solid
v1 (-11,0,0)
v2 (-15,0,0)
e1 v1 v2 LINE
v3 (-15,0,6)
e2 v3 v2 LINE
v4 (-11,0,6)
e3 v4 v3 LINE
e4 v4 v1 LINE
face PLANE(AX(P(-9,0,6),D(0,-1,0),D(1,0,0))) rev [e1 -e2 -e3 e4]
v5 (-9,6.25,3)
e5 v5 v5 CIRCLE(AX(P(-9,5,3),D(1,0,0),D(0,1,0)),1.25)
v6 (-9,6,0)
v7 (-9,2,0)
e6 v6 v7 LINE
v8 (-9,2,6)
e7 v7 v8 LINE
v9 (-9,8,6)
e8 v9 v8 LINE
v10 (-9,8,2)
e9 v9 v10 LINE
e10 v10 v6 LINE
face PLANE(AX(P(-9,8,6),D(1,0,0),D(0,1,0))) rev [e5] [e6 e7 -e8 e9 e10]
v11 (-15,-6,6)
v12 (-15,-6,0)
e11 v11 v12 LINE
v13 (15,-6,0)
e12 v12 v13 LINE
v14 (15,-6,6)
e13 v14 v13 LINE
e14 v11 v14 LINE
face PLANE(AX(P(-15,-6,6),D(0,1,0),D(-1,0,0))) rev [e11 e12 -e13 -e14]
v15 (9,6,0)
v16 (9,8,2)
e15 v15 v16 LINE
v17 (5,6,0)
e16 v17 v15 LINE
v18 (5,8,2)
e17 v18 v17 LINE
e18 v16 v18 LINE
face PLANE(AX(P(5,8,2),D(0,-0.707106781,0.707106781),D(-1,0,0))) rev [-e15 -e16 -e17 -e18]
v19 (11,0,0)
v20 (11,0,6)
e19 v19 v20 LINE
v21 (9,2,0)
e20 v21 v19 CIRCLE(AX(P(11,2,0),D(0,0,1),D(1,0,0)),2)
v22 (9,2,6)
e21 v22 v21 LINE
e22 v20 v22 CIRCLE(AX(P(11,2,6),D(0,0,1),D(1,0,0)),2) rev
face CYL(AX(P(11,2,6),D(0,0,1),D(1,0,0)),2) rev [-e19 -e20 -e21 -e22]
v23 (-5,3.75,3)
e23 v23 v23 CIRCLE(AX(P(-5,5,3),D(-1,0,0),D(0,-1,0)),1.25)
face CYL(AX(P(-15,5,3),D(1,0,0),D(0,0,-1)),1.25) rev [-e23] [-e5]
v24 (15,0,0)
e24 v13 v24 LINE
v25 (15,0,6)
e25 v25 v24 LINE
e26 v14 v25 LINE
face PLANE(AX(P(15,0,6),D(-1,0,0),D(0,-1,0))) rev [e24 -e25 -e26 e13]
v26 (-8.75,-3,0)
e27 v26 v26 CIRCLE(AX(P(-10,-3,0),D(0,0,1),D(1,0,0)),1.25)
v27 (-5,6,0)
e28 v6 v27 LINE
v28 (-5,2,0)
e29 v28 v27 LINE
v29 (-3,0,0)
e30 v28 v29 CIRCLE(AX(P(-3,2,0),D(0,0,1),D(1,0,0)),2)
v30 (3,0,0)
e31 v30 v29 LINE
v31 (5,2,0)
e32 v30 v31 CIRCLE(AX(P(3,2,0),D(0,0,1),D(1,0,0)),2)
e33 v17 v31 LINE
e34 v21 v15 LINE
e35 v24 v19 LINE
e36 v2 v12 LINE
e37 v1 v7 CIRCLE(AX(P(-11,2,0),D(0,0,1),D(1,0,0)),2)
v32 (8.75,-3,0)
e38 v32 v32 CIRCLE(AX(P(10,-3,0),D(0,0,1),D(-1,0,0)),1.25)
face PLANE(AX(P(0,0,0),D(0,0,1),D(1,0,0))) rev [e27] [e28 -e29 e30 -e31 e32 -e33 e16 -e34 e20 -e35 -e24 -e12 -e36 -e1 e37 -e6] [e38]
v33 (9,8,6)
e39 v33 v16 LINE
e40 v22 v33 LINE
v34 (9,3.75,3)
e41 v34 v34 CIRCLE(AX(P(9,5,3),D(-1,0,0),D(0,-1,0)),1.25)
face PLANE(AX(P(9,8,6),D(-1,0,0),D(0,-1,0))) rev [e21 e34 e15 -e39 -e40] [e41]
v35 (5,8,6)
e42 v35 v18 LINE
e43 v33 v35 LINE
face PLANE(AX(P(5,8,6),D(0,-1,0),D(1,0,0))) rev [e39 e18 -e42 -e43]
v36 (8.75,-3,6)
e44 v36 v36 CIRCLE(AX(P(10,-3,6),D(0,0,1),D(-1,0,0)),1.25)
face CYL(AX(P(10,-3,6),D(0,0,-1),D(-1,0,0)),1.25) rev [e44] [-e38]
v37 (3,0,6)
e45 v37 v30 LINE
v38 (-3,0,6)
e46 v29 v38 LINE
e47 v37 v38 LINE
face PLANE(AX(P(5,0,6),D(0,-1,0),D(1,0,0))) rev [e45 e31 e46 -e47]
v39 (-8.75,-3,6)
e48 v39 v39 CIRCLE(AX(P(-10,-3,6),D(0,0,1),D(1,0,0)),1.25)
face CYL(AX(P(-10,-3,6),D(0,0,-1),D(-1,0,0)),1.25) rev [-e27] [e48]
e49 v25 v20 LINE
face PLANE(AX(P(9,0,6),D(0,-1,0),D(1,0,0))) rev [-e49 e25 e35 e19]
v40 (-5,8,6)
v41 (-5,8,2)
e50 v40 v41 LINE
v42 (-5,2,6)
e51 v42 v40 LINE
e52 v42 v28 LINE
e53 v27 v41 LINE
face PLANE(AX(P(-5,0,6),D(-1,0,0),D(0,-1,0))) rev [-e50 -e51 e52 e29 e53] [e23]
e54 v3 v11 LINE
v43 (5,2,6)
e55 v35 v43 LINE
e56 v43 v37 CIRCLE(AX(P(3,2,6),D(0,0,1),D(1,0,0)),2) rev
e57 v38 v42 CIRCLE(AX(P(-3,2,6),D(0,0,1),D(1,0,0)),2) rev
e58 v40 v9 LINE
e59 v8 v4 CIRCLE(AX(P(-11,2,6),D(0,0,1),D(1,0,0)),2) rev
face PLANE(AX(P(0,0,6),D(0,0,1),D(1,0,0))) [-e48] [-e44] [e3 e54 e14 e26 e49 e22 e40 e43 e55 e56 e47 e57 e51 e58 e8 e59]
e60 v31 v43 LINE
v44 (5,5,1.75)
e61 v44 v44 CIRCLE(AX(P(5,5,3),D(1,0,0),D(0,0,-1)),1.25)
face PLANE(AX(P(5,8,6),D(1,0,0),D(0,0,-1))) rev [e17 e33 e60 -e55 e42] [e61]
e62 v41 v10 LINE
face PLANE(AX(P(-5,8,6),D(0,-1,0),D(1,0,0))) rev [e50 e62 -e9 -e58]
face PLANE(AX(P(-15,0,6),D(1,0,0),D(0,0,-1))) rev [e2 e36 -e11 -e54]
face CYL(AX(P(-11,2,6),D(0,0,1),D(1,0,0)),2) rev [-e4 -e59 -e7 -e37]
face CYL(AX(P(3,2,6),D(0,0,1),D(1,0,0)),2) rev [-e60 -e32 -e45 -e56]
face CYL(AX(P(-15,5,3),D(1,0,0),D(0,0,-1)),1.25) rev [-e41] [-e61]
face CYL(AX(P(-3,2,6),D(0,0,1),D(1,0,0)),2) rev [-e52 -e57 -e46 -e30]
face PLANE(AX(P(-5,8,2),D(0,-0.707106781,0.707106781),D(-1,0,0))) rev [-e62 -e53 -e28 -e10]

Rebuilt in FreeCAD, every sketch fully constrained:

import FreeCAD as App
import Part
import Sketcher
from FreeCAD import Vector


def edges_at(feature, points):
    """Names of the edges that pass closest to the given points."""
    edges = feature.Shape.Edges
    near = lambda p: min(range(len(edges)), key=lambda i: edges[i].distToShape(Part.Vertex(*p))[0])
    return sorted({f"Edge{near(p) + 1}" for p in points})

doc = App.newDocument("Part")
params = doc.addObject("Spreadsheet::Sheet", "Params")
for row, (alias, value) in enumerate([
    ("sketch1_diameter", "2.5 mm"),
    ("sketch1_width", "30 mm"),
    ("sketch1_width2", "6 mm"),
    ("sketch1_width3", "4 mm"),
    ("sketch1_height", "8 mm"),
    ("pad1_length", "6 mm"),
    ("chamfer_size", "2 mm"),
    ("sketch2_diameter", "2.5 mm"),
    ("fillet_radius", "2 mm"),
], start=1):
    params.set(f"A{row}", alias)
    params.set(f"B{row}", "=" + value)
    params.setAlias(f"B{row}", alias)

body = doc.addObject("PartDesign::Body", "Body")

# Sketch on XY plane
sketch1 = body.newObject("Sketcher::SketchObject", "Sketch")
sketch1.AttachmentSupport = (doc.getObject("XY_Plane"), [""])
sketch1.MapMode = "FlatFace"
sketch1.addGeometry(Part.LineSegment(Vector(-15, -6, 0), Vector(15, -6, 0)), False)
sketch1.addGeometry(Part.LineSegment(Vector(15, -6, 0), Vector(15, 0, 0)), False)
sketch1.addGeometry(Part.LineSegment(Vector(15, 0, 0), Vector(9, 0, 0)), False)
sketch1.addGeometry(Part.LineSegment(Vector(9, 0, 0), Vector(9, 8, 0)), False)
sketch1.addGeometry(Part.LineSegment(Vector(9, 8, 0), Vector(5, 8, 0)), False)
sketch1.addGeometry(Part.LineSegment(Vector(5, 8, 0), Vector(5, 0, 0)), False)
sketch1.addGeometry(Part.LineSegment(Vector(5, 0, 0), Vector(-5, 0, 0)), False)
sketch1.addGeometry(Part.LineSegment(Vector(-5, 0, 0), Vector(-5, 8, 0)), False)
sketch1.addGeometry(Part.LineSegment(Vector(-5, 8, 0), Vector(-9, 8, 0)), False)
sketch1.addGeometry(Part.LineSegment(Vector(-9, 8, 0), Vector(-9, 0, 0)), False)
sketch1.addGeometry(Part.LineSegment(Vector(-9, 0, 0), Vector(-15, 0, 0)), False)
sketch1.addGeometry(Part.LineSegment(Vector(-15, 0, 0), Vector(-15, -6, 0)), False)
sketch1.addGeometry(Part.Circle(Vector(-10, -3, 0), Vector(0, 0, 1), 1.2), False)
sketch1.addGeometry(Part.Circle(Vector(10, -3, 0), Vector(0, 0, 1), 1.2), False)
sketch1.addConstraint(Sketcher.Constraint("Coincident", 0, 2, 1, 1))
sketch1.addConstraint(Sketcher.Constraint("Coincident", 1, 2, 2, 1))
sketch1.addConstraint(Sketcher.Constraint("Coincident", 2, 2, 3, 1))
sketch1.addConstraint(Sketcher.Constraint("Coincident", 3, 2, 4, 1))
sketch1.addConstraint(Sketcher.Constraint("Coincident", 4, 2, 5, 1))
sketch1.addConstraint(Sketcher.Constraint("Coincident", 5, 2, 6, 1))
sketch1.addConstraint(Sketcher.Constraint("Coincident", 6, 2, 7, 1))
sketch1.addConstraint(Sketcher.Constraint("Coincident", 7, 2, 8, 1))
sketch1.addConstraint(Sketcher.Constraint("Coincident", 8, 2, 9, 1))
sketch1.addConstraint(Sketcher.Constraint("Coincident", 9, 2, 10, 1))
sketch1.addConstraint(Sketcher.Constraint("Coincident", 10, 2, 11, 1))
sketch1.addConstraint(Sketcher.Constraint("Coincident", 11, 2, 0, 1))
sketch1.addConstraint(Sketcher.Constraint("Horizontal", 0))
sketch1.addConstraint(Sketcher.Constraint("Vertical", 1))
sketch1.addConstraint(Sketcher.Constraint("Horizontal", 2))
sketch1.addConstraint(Sketcher.Constraint("Vertical", 3))
sketch1.addConstraint(Sketcher.Constraint("Horizontal", 4))
sketch1.addConstraint(Sketcher.Constraint("Vertical", 5))
sketch1.addConstraint(Sketcher.Constraint("Horizontal", 6))
sketch1.addConstraint(Sketcher.Constraint("Vertical", 7))
sketch1.addConstraint(Sketcher.Constraint("Horizontal", 8))
sketch1.addConstraint(Sketcher.Constraint("Vertical", 9))
sketch1.addConstraint(Sketcher.Constraint("Horizontal", 10))
sketch1.addConstraint(Sketcher.Constraint("Vertical", 11))
sketch1.addConstraint(Sketcher.Constraint("Equal", 12, 13))
sketch1.addConstraint(Sketcher.Constraint("Symmetric", 5, 2, 6, 2, -1, 1))
sketch1.addConstraint(Sketcher.Constraint("Symmetric", 2, 2, 9, 2, -1, 1))
sketch1.addConstraint(Sketcher.Constraint("Symmetric", 12, 3, 13, 3, -2))
sketch1.addConstraint(Sketcher.Constraint("Symmetric", 1, 2, 10, 2, -2))
sketch1.addConstraint(Sketcher.Constraint("Horizontal", 4, 2, 7, 2))
sketch1.addConstraint(Sketcher.Constraint("Equal", 10, 1))
sketch1.addConstraint(Sketcher.Constraint("Diameter", 12, 2.5))
sketch1.addConstraint(Sketcher.Constraint("DistanceX", 0, 1, 0, 2, 30.0))
sketch1.addConstraint(Sketcher.Constraint("DistanceX", 2, 2, 2, 1, 6.0))
sketch1.addConstraint(Sketcher.Constraint("DistanceX", 4, 2, 4, 1, 4.0))
sketch1.addConstraint(Sketcher.Constraint("DistanceY", 3, 1, 3, 2, 8.0))
sketch1.addConstraint(Sketcher.Constraint("DistanceX", 12, 3, -1, 1, 10.0))
sketch1.addConstraint(Sketcher.Constraint("DistanceY", 12, 3, -1, 1, 3.0))
sketch1.setExpression("Constraints[31]", "Params.sketch1_diameter")
sketch1.setExpression("Constraints[32]", "Params.sketch1_width")
sketch1.setExpression("Constraints[33]", "Params.sketch1_width2")
sketch1.setExpression("Constraints[34]", "Params.sketch1_width3")
sketch1.setExpression("Constraints[35]", "Params.sketch1_height")
pad1 = body.newObject("PartDesign::Pad", "Pad")
pad1.Profile = sketch1
pad1.setExpression("Length", "Params.pad1_length")
doc.recompute()

chamfer = body.newObject("PartDesign::Chamfer", "Chamfer")
chamfer.Base = (pad1, edges_at(pad1, [(-7, 8, 0), (7, 8, 0)]))
chamfer.setExpression("Size", "Params.chamfer_size")

# Sketch on YZ plane
sketch2 = body.newObject("Sketcher::SketchObject", "Sketch001")
sketch2.AttachmentSupport = (doc.getObject("YZ_Plane"), [""])
sketch2.MapMode = "FlatFace"
sketch2.addGeometry(Part.Circle(Vector(5, 3, 0), Vector(0, 0, 1), 1.2), False)
sketch2.addConstraint(Sketcher.Constraint("Diameter", 0, 2.5))
sketch2.addConstraint(Sketcher.Constraint("DistanceX", -1, 1, 0, 3, 5.0))
sketch2.addConstraint(Sketcher.Constraint("DistanceY", -1, 1, 0, 3, 3.0))
sketch2.setExpression("Constraints[0]", "Params.sketch2_diameter")
pocket1 = body.newObject("PartDesign::Pocket", "Pocket")
pocket1.Profile = sketch2
pocket1.Type = "ThroughAll"
pocket1.Midplane = True
doc.recompute()

fillet = body.newObject("PartDesign::Fillet", "Fillet")
fillet.Base = (pocket1, edges_at(pocket1, [
    (-9, 0, 3),
    (-5, 0, 3),
    (5, 0, 3),
    (9, 0, 3),
]))
fillet.setExpression("Radius", "Params.fillet_radius")

doc.recompute()
